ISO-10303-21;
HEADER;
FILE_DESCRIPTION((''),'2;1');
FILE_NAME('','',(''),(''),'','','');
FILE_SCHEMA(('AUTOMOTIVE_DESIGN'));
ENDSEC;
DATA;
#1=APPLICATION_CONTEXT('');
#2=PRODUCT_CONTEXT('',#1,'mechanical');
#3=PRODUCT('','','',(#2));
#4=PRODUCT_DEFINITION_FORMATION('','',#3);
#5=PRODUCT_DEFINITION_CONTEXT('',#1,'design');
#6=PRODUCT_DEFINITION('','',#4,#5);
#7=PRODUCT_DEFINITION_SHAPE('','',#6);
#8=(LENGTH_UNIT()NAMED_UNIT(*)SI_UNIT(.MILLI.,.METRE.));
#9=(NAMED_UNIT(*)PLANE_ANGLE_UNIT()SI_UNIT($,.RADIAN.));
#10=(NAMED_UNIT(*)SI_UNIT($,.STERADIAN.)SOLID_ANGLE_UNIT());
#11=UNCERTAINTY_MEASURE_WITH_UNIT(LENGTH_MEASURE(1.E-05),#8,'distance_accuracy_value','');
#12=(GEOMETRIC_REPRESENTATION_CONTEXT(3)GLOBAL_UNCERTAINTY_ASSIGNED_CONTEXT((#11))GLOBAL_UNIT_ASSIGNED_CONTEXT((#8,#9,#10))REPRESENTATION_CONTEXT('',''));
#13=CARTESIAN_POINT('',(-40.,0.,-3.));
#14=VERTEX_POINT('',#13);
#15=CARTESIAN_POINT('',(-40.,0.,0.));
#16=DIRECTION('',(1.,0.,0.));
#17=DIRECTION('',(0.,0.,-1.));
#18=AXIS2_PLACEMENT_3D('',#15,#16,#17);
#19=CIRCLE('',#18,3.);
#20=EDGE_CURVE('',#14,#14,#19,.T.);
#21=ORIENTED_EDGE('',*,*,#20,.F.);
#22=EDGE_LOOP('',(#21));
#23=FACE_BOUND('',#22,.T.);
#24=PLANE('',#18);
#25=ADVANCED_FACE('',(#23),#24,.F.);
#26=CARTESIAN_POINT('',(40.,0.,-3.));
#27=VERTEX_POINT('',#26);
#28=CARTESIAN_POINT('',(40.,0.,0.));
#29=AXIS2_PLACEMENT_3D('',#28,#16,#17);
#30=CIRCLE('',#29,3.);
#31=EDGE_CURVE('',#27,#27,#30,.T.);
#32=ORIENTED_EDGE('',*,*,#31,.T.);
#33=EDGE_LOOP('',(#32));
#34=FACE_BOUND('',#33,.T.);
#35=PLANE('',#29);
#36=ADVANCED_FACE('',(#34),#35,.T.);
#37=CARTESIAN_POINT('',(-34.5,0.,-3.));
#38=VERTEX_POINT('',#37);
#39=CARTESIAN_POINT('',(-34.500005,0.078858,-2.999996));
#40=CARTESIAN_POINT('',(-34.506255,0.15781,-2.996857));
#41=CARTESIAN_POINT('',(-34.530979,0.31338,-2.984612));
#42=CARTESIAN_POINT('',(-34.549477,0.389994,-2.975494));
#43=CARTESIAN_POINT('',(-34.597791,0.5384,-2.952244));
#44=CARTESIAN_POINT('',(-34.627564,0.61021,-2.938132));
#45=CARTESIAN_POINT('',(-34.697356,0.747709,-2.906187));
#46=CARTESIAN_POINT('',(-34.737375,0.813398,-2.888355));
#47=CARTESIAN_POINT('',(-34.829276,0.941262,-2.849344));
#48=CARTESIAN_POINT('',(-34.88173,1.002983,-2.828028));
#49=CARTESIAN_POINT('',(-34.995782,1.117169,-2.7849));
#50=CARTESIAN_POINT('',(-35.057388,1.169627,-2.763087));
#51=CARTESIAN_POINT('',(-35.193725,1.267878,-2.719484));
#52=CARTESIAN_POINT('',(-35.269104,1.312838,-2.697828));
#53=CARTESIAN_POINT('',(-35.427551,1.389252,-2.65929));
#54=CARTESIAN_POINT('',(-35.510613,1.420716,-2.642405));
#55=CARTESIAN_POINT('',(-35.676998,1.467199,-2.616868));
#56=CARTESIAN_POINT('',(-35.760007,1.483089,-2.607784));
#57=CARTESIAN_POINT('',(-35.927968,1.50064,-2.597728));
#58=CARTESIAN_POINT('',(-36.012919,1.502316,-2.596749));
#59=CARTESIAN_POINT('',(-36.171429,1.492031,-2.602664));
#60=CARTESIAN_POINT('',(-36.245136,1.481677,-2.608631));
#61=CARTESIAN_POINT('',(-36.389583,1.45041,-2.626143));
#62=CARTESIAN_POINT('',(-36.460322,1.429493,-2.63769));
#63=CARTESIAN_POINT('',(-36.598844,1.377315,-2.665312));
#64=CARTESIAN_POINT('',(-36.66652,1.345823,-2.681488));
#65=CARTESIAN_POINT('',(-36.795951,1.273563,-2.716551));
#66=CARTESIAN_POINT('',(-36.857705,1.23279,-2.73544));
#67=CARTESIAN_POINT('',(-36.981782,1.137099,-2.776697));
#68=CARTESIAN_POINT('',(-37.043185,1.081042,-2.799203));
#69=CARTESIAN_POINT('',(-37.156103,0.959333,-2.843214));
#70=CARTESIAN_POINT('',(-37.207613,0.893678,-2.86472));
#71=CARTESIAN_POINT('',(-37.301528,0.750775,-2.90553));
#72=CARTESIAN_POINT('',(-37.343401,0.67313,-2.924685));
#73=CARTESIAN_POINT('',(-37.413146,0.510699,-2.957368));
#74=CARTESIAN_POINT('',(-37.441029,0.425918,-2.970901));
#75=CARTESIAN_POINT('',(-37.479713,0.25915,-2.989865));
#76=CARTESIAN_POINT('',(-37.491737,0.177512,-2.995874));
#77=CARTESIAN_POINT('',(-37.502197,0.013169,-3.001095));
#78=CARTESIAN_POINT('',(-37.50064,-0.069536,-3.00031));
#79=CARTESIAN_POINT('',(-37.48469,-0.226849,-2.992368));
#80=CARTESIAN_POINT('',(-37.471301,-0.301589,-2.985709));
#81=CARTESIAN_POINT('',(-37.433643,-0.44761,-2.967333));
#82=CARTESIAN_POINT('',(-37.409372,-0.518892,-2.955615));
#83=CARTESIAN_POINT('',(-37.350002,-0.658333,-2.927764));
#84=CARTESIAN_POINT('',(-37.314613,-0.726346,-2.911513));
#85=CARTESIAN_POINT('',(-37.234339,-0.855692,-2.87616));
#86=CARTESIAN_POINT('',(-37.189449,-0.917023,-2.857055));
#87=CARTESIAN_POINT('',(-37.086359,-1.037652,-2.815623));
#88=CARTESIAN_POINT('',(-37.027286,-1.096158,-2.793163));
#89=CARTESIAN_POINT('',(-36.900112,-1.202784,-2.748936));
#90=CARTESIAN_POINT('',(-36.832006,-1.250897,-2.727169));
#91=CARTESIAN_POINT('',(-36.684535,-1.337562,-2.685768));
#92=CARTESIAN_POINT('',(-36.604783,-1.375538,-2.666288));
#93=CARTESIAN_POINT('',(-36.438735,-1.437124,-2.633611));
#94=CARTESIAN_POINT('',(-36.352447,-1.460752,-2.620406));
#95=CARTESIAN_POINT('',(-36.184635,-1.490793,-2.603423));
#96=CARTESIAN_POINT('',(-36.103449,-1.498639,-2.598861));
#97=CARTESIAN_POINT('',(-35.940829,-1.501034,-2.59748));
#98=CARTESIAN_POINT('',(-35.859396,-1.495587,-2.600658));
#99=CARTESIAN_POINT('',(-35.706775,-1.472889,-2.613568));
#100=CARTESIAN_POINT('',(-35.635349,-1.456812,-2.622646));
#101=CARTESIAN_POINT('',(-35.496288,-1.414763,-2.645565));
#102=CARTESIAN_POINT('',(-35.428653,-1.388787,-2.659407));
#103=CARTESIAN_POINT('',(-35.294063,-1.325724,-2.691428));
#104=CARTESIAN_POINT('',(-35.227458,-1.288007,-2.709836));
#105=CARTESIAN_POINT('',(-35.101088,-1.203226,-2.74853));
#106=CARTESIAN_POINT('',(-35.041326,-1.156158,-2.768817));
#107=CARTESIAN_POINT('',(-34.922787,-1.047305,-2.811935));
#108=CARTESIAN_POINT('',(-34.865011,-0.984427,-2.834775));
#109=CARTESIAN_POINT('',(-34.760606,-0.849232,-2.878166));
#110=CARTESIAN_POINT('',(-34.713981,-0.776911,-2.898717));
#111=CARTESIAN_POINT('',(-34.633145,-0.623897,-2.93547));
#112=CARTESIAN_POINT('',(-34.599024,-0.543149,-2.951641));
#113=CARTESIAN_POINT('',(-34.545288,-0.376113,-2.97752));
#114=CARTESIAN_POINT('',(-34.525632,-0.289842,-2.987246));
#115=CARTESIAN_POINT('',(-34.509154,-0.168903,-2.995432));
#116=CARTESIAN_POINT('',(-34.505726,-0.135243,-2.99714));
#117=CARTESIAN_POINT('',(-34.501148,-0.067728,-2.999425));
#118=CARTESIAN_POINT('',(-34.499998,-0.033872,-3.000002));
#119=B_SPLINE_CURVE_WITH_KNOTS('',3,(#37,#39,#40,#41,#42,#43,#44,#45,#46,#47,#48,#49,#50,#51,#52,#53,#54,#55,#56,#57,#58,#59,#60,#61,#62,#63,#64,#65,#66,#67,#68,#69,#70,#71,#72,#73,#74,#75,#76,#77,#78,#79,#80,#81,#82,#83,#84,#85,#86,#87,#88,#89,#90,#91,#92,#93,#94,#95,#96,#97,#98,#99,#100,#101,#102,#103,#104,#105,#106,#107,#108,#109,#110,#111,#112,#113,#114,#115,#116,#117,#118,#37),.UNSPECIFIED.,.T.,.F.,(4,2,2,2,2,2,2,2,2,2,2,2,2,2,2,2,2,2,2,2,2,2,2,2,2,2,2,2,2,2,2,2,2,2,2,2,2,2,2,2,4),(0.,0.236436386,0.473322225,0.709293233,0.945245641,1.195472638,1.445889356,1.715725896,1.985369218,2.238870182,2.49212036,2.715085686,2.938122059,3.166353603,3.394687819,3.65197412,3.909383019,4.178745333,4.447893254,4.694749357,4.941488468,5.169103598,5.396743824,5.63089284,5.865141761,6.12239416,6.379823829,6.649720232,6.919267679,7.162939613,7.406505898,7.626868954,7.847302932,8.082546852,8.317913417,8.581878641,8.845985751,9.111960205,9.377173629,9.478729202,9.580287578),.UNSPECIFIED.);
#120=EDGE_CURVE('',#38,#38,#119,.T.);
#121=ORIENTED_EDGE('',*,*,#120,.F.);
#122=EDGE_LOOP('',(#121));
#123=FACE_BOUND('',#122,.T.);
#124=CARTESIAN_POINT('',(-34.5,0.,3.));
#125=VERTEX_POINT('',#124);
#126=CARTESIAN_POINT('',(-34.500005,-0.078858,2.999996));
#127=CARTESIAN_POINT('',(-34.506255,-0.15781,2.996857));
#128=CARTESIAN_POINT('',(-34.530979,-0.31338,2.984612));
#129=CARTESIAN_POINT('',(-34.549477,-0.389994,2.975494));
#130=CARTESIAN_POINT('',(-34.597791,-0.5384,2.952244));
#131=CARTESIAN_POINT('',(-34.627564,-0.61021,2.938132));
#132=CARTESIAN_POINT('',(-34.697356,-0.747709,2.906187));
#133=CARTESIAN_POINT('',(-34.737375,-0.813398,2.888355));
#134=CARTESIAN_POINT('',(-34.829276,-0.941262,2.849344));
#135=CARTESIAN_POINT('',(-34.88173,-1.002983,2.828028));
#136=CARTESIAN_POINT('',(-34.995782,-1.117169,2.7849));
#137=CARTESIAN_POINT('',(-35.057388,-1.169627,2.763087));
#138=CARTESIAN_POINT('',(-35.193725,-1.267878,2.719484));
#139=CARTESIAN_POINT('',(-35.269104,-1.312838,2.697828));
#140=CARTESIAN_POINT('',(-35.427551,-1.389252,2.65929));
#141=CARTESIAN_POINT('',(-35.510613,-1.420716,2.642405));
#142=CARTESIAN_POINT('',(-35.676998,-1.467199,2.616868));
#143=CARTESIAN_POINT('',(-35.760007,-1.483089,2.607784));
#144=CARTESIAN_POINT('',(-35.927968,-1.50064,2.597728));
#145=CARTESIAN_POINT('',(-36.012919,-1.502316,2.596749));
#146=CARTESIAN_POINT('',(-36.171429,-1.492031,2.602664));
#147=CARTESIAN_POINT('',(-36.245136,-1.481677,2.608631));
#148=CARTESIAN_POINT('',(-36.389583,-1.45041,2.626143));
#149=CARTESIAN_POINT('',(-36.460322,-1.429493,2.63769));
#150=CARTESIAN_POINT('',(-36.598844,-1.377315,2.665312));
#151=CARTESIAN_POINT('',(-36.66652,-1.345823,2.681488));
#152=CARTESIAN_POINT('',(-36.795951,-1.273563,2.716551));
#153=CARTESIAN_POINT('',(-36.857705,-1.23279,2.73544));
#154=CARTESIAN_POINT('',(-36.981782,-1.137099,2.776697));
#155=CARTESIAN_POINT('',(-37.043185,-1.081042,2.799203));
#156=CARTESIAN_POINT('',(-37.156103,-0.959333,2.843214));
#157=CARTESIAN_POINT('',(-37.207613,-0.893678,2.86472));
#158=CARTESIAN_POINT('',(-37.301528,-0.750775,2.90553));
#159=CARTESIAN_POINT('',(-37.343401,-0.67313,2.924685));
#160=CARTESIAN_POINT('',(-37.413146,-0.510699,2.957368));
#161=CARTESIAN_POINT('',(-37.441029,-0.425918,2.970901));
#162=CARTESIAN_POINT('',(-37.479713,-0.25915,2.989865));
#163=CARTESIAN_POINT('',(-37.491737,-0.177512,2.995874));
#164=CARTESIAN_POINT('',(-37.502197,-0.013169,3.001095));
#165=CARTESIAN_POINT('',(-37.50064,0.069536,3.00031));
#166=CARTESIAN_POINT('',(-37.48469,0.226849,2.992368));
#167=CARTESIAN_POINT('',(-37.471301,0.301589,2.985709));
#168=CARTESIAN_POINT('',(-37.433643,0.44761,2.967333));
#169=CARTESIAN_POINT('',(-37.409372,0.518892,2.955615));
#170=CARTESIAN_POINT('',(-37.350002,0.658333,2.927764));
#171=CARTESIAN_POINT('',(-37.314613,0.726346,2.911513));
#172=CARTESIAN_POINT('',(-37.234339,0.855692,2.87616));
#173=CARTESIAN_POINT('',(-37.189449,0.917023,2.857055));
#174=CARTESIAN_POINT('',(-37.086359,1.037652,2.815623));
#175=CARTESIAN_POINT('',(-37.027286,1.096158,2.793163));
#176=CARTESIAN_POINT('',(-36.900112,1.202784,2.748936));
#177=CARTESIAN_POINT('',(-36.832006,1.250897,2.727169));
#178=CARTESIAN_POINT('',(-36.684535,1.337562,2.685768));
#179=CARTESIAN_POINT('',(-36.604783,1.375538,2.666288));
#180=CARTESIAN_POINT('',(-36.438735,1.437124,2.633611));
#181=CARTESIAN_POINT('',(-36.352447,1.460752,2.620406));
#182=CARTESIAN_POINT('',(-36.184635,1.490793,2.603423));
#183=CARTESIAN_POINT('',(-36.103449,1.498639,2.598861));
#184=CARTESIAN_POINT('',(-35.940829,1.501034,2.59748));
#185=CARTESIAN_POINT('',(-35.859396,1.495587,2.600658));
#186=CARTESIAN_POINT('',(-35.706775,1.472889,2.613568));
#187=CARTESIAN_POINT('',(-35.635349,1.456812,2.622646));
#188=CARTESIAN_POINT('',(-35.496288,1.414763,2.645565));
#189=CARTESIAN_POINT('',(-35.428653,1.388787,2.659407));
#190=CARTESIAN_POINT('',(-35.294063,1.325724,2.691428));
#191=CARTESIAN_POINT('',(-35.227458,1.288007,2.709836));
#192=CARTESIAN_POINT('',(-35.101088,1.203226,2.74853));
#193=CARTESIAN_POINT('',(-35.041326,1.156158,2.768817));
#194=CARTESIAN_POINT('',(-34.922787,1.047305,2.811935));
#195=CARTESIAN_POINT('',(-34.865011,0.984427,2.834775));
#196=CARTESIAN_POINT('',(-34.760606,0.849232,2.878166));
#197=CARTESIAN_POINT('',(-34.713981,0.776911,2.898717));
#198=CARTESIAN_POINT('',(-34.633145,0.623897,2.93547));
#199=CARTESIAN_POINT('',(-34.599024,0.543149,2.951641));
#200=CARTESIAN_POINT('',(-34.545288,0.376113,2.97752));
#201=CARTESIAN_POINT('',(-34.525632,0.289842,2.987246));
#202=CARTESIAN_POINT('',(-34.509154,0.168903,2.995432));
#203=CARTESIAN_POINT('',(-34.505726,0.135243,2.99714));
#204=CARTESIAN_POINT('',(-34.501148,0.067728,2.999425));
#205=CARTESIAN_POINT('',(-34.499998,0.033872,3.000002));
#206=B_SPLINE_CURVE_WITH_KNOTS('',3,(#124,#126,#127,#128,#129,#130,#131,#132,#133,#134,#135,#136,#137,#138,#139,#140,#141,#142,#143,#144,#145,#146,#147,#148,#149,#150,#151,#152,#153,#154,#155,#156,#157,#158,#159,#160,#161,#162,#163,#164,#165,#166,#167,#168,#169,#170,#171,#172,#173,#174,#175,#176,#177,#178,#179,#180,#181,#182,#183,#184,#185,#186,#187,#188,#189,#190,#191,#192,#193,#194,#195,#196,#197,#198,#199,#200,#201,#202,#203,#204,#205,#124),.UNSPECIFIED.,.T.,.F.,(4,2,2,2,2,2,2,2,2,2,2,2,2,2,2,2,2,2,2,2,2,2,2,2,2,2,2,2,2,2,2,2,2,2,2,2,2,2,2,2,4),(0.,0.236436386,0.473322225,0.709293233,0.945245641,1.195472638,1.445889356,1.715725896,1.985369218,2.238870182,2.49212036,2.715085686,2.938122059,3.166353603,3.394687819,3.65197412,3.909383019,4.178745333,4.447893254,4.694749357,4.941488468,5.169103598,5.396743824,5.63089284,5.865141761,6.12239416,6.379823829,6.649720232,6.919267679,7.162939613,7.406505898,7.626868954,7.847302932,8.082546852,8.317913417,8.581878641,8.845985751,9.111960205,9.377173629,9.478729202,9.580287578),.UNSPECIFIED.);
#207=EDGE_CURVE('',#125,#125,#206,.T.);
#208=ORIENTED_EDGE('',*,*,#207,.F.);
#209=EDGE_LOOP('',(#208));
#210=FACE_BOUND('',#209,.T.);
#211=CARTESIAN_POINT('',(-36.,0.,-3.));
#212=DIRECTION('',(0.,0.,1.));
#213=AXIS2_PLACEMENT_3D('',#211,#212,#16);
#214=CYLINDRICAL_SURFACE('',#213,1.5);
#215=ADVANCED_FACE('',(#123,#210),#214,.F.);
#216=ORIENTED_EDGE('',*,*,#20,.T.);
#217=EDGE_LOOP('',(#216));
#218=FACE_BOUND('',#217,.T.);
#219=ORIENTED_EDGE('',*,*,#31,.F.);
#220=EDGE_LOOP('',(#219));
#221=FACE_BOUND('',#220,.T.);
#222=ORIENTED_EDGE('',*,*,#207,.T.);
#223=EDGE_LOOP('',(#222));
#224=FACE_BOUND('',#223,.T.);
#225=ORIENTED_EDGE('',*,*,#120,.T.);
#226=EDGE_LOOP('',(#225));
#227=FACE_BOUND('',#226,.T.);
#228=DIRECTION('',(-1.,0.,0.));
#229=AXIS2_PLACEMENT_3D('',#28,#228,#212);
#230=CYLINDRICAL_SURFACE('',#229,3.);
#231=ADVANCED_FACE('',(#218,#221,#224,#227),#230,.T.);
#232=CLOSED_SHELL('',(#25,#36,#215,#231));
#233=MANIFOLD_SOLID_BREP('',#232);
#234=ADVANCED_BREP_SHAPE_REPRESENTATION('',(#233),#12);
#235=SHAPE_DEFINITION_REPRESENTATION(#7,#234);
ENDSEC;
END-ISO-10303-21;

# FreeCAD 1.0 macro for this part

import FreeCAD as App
import Part
import Sketcher
Q = App.Units.Quantity

doc = App.newDocument("Part")
body = doc.addObject("PartDesign::Body", "Body")

# Sketch on YZ plane
sketch1 = doc.addObject("Sketcher::SketchObject", "Sketch")
body.addObject(sketch1)
sketch1.AttachmentSupport = (doc.YZ_Plane, [""])
sketch1.MapMode = "FlatFace"
sketch1.addGeometry(Part.Circle(App.Vector(0, 0, 0), App.Vector(0, 0, 1), 3), False)
sketch1.addConstraint([
    Sketcher.Constraint("Coincident", 0, 3, -1, 1),
    Sketcher.Constraint("Diameter", 0, Q("6 mm")),
])
pad1 = doc.addObject("PartDesign::Pad", "Pad")
body.addObject(pad1)
pad1.Profile = sketch1
pad1.Length = 80
pad1.Midplane = True

# Sketch on XY plane
sketch2 = doc.addObject("Sketcher::SketchObject", "Sketch001")
body.addObject(sketch2)
sketch2.AttachmentSupport = (doc.XY_Plane, [""])
sketch2.MapMode = "FlatFace"
sketch2.addGeometry(Part.Circle(App.Vector(-36, 0, 0), App.Vector(0, 0, 1), 1.5), False)
sketch2.addConstraint([
    Sketcher.Constraint("PointOnObject", 0, 3, -1),
    Sketcher.Constraint("Diameter", 0, Q("3 mm")),
    Sketcher.Constraint("DistanceX", 0, 3, -1, 1, Q("36 mm")),
])
pocket1 = doc.addObject("PartDesign::Pocket", "Pocket")
body.addObject(pocket1)
pocket1.Profile = sketch2
pocket1.Type = "ThroughAll"
pocket1.Midplane = True

doc.recompute()
